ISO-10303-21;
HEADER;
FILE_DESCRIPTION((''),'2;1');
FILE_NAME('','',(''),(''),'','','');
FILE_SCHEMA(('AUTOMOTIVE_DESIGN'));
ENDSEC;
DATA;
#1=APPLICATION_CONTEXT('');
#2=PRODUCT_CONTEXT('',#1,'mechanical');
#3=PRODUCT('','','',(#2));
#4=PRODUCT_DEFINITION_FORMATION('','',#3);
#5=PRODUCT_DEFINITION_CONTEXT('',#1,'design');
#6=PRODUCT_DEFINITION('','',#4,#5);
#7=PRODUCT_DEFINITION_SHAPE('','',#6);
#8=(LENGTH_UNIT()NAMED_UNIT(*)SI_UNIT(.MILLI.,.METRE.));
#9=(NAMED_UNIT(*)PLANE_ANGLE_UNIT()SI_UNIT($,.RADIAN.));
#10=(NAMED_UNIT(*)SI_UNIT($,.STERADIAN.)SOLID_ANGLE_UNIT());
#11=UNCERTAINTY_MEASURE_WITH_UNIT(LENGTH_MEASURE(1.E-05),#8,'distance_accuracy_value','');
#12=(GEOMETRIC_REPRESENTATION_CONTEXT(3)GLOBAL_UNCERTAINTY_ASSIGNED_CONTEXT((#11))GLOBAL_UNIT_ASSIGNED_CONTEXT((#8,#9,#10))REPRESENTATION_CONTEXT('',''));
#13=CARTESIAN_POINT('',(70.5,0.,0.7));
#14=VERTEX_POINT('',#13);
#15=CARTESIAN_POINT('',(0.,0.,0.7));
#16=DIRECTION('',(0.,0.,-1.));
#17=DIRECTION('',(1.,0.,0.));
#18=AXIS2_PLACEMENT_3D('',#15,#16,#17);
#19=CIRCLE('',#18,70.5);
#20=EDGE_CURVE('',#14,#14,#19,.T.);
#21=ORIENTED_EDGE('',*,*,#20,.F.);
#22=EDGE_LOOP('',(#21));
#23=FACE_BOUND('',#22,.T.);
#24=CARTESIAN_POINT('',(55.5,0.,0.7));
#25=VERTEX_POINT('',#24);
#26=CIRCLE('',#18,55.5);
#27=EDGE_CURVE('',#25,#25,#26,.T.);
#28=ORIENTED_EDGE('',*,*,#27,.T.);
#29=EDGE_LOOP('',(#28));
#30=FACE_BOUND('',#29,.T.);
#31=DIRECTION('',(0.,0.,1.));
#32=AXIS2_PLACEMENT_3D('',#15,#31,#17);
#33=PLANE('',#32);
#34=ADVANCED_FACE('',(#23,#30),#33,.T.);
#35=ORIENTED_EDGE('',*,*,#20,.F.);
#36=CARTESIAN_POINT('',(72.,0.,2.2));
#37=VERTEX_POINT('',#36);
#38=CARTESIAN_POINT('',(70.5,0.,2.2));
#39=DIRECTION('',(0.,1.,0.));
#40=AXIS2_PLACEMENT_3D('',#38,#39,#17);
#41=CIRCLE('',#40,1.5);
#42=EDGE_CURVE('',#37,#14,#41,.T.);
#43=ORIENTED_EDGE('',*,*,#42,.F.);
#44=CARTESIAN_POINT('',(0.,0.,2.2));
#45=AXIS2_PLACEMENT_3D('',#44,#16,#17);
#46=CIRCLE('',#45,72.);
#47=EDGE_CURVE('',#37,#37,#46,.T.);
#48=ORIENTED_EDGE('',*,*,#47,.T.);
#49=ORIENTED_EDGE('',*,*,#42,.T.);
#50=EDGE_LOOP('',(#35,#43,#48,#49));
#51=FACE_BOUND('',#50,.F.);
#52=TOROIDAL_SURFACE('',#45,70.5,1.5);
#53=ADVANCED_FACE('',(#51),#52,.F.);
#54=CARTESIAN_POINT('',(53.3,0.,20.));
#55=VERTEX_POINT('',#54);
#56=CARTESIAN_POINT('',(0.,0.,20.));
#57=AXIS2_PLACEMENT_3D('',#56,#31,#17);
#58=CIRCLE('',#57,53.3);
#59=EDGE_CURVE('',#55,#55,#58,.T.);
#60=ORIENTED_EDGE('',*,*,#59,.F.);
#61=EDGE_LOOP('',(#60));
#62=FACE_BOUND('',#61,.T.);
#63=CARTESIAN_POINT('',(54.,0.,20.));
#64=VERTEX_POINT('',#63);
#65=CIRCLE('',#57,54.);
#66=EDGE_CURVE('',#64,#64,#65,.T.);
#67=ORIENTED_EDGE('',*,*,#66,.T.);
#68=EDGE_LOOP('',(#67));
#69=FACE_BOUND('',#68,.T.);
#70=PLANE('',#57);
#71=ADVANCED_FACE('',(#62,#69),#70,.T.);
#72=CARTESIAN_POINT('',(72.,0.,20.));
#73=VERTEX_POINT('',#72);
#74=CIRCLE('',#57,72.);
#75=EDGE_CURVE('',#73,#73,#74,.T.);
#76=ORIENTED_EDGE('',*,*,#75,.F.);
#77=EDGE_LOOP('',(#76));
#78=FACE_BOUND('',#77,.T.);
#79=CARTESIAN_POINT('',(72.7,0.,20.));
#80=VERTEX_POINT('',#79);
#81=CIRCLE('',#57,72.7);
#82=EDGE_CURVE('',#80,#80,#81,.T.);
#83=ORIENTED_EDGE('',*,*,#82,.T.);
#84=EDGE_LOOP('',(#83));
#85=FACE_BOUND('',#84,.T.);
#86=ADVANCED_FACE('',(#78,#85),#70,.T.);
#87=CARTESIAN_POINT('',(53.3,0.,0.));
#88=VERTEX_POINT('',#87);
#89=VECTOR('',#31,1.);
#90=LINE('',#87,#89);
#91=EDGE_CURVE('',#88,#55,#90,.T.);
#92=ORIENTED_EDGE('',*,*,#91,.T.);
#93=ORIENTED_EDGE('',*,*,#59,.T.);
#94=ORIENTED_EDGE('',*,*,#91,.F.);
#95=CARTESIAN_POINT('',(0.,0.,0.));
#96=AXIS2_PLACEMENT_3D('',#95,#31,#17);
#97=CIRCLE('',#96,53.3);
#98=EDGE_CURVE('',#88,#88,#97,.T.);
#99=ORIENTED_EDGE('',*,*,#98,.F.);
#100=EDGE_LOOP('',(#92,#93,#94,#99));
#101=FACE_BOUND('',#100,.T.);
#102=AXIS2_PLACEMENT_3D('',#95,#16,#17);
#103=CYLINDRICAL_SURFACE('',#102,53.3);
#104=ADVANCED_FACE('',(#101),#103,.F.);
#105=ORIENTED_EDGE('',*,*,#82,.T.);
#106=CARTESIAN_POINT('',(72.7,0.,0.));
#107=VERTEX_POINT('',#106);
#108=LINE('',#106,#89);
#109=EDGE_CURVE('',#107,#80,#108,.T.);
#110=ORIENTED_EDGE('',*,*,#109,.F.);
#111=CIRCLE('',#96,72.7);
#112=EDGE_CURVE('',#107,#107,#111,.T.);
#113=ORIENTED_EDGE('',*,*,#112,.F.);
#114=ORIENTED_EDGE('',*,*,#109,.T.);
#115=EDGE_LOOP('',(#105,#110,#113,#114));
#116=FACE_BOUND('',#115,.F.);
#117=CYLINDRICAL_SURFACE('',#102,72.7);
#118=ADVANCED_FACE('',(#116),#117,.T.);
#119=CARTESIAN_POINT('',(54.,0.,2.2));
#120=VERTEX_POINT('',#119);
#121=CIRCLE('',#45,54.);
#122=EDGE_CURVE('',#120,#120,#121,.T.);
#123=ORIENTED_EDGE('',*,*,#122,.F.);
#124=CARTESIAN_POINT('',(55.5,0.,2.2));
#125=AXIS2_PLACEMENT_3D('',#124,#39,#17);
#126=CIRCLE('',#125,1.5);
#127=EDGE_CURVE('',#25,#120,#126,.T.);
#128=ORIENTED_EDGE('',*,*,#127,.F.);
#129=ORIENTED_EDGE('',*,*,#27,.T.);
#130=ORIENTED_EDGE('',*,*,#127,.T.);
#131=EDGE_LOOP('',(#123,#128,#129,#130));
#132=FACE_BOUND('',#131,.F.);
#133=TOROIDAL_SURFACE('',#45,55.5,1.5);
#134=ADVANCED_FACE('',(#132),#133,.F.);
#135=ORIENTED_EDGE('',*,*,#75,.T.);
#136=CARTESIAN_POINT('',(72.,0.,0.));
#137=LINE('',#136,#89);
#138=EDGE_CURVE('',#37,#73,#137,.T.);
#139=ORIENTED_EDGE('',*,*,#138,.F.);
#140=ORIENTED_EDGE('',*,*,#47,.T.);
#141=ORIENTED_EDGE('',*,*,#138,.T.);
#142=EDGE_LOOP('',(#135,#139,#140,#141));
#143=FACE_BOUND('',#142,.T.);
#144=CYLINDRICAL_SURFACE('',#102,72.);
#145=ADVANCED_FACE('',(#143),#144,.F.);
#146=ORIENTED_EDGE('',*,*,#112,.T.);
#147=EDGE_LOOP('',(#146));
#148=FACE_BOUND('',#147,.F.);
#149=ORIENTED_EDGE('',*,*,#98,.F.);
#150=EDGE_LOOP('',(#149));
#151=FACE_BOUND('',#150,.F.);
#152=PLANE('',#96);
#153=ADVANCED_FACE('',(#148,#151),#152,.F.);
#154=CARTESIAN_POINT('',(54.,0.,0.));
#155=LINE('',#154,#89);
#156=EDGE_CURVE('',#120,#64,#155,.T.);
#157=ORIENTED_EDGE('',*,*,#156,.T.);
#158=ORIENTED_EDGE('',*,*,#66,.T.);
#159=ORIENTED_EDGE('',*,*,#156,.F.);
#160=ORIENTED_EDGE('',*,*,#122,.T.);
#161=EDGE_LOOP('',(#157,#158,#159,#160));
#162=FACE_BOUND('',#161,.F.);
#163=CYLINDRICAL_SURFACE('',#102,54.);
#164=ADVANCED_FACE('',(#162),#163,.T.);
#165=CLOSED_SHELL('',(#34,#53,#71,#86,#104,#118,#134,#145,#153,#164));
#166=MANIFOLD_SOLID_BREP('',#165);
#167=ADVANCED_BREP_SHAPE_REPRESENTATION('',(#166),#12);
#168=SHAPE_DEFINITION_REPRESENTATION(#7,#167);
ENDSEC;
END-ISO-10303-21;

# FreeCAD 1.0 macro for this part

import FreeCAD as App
import Part
import Sketcher
from FreeCAD import Vector
Q = App.Units.Quantity


def edges_at(feature, points):
    """Names of the edges that pass closest to the given points."""
    edges = feature.Shape.Edges
    near = lambda p: min(range(len(edges)), key=lambda i: edges[i].distToShape(Part.Vertex(*p))[0])
    return sorted({f"Edge{near(p) + 1}" for p in points})


def faces_at(feature, points):
    """Names of the faces that lie closest to the given points."""
    faces = feature.Shape.Faces
    near = lambda p: min(range(len(faces)), key=lambda i: faces[i].distToShape(Part.Vertex(*p))[0])
    return sorted({f"Face{near(p) + 1}" for p in points})

doc = App.newDocument("Part")
body = doc.addObject("PartDesign::Body", "Body")

# Sketch on XY plane
sketch1 = doc.addObject("Sketcher::SketchObject", "Sketch")
body.addObject(sketch1)
sketch1.AttachmentSupport = (doc.XY_Plane, [""])
sketch1.MapMode = "FlatFace"
sketch1.addGeometry(Part.Circle(Vector(0, 0, 0), Vector(0, 0, 1), 73), False)
sketch1.addGeometry(Part.Circle(Vector(0, 0, 0), Vector(0, 0, 1), 53), False)
sketch1.addConstraint(Sketcher.Constraint("Coincident", 0, 3, -1, 1))
sketch1.addConstraint(Sketcher.Constraint("Coincident", 1, 3, -1, 1))
sketch1.addConstraint(Sketcher.Constraint("Diameter", 0, Q("145.4 mm")))
sketch1.addConstraint(Sketcher.Constraint("Diameter", 1, Q("106.6 mm")))
pad1 = doc.addObject("PartDesign::Pad", "Pad")
body.addObject(pad1)
pad1.Profile = sketch1
pad1.Length = 20
doc.recompute()

thickness = doc.addObject("PartDesign::Thickness", "Thickness")
body.addObject(thickness)
thickness.Base = (pad1, faces_at(pad1, [(-58.16, 0, 20)]))
thickness.Value = 0.7
thickness.Reversed = True
thickness.Join = "Arc"
doc.recompute()

fillet = doc.addObject("PartDesign::Fillet", "Fillet")
body.addObject(fillet)
fillet.Base = (thickness, edges_at(thickness, [(-72, 0, 0.7), (-54, 0, 0.7)]))
fillet.Radius = 1.5

doc.recompute()
